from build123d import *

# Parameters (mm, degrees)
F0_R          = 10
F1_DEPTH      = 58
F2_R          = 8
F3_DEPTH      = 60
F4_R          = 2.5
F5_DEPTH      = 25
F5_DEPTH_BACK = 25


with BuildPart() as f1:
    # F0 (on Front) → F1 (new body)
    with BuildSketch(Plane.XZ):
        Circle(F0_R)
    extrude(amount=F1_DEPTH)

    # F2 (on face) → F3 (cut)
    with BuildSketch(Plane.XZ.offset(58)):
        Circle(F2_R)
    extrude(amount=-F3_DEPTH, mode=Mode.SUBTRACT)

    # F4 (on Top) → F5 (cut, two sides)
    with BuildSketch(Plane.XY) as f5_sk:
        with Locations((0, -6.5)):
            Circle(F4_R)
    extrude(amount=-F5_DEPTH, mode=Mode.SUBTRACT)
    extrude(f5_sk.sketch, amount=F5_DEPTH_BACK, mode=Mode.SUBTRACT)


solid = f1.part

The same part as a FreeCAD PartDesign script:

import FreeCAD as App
import Part
import Sketcher
from FreeCAD import Vector
Q = App.Units.Quantity

doc = App.newDocument("Part")
body = doc.addObject("PartDesign::Body", "Body")

# Sketch on XZ plane
sketch1 = doc.addObject("Sketcher::SketchObject", "Sketch")
body.addObject(sketch1)
sketch1.AttachmentSupport = (doc.XZ_Plane, [""])
sketch1.MapMode = "FlatFace"
sketch1.addGeometry(Part.Circle(Vector(0, 0, 0), Vector(0, 0, 1), 10), False)
sketch1.addConstraint([
    Sketcher.Constraint("Coincident", 0, 3, -1, 1),
    Sketcher.Constraint("Diameter", 0, Q("20 mm")),
])
pad1 = doc.addObject("PartDesign::Pad", "Pad")
body.addObject(pad1)
pad1.Profile = sketch1
pad1.Length = 58

# Sketch on XZ plane
sketch2 = doc.addObject("Sketcher::SketchObject", "Sketch001")
body.addObject(sketch2)
sketch2.AttachmentSupport = (doc.XZ_Plane, [""])
sketch2.MapMode = "FlatFace"
sketch2.AttachmentOffset = App.Placement(Vector(0, 0, 58), App.Rotation())
sketch2.addGeometry(Part.Circle(Vector(0, 0, 0), Vector(0, 0, 1), 8), False)
sketch2.addConstraint([
    Sketcher.Constraint("Coincident", 0, 3, -1, 1),
    Sketcher.Constraint("Diameter", 0, Q("16 mm")),
])
pocket1 = doc.addObject("PartDesign::Pocket", "Pocket")
body.addObject(pocket1)
pocket1.Profile = sketch2
pocket1.Length = 60

# Sketch on XY plane
sketch3 = doc.addObject("Sketcher::SketchObject", "Sketch002")
body.addObject(sketch3)
sketch3.AttachmentSupport = (doc.XY_Plane, [""])
sketch3.MapMode = "FlatFace"
sketch3.addGeometry(Part.Circle(Vector(0, -6.5, 0), Vector(0, 0, 1), 2.5), False)
sketch3.addConstraint([
    Sketcher.Constraint("PointOnObject", 0, 3, -2),
    Sketcher.Constraint("Diameter", 0, Q("5 mm")),
    Sketcher.Constraint("DistanceY", 0, 3, -1, 1, Q("6.5 mm")),
])
pocket2 = doc.addObject("PartDesign::Pocket", "Pocket001")
body.addObject(pocket2)
pocket2.Profile = sketch3
pocket2.Type = "ThroughAll"
pocket2.Midplane = True

doc.recompute()
